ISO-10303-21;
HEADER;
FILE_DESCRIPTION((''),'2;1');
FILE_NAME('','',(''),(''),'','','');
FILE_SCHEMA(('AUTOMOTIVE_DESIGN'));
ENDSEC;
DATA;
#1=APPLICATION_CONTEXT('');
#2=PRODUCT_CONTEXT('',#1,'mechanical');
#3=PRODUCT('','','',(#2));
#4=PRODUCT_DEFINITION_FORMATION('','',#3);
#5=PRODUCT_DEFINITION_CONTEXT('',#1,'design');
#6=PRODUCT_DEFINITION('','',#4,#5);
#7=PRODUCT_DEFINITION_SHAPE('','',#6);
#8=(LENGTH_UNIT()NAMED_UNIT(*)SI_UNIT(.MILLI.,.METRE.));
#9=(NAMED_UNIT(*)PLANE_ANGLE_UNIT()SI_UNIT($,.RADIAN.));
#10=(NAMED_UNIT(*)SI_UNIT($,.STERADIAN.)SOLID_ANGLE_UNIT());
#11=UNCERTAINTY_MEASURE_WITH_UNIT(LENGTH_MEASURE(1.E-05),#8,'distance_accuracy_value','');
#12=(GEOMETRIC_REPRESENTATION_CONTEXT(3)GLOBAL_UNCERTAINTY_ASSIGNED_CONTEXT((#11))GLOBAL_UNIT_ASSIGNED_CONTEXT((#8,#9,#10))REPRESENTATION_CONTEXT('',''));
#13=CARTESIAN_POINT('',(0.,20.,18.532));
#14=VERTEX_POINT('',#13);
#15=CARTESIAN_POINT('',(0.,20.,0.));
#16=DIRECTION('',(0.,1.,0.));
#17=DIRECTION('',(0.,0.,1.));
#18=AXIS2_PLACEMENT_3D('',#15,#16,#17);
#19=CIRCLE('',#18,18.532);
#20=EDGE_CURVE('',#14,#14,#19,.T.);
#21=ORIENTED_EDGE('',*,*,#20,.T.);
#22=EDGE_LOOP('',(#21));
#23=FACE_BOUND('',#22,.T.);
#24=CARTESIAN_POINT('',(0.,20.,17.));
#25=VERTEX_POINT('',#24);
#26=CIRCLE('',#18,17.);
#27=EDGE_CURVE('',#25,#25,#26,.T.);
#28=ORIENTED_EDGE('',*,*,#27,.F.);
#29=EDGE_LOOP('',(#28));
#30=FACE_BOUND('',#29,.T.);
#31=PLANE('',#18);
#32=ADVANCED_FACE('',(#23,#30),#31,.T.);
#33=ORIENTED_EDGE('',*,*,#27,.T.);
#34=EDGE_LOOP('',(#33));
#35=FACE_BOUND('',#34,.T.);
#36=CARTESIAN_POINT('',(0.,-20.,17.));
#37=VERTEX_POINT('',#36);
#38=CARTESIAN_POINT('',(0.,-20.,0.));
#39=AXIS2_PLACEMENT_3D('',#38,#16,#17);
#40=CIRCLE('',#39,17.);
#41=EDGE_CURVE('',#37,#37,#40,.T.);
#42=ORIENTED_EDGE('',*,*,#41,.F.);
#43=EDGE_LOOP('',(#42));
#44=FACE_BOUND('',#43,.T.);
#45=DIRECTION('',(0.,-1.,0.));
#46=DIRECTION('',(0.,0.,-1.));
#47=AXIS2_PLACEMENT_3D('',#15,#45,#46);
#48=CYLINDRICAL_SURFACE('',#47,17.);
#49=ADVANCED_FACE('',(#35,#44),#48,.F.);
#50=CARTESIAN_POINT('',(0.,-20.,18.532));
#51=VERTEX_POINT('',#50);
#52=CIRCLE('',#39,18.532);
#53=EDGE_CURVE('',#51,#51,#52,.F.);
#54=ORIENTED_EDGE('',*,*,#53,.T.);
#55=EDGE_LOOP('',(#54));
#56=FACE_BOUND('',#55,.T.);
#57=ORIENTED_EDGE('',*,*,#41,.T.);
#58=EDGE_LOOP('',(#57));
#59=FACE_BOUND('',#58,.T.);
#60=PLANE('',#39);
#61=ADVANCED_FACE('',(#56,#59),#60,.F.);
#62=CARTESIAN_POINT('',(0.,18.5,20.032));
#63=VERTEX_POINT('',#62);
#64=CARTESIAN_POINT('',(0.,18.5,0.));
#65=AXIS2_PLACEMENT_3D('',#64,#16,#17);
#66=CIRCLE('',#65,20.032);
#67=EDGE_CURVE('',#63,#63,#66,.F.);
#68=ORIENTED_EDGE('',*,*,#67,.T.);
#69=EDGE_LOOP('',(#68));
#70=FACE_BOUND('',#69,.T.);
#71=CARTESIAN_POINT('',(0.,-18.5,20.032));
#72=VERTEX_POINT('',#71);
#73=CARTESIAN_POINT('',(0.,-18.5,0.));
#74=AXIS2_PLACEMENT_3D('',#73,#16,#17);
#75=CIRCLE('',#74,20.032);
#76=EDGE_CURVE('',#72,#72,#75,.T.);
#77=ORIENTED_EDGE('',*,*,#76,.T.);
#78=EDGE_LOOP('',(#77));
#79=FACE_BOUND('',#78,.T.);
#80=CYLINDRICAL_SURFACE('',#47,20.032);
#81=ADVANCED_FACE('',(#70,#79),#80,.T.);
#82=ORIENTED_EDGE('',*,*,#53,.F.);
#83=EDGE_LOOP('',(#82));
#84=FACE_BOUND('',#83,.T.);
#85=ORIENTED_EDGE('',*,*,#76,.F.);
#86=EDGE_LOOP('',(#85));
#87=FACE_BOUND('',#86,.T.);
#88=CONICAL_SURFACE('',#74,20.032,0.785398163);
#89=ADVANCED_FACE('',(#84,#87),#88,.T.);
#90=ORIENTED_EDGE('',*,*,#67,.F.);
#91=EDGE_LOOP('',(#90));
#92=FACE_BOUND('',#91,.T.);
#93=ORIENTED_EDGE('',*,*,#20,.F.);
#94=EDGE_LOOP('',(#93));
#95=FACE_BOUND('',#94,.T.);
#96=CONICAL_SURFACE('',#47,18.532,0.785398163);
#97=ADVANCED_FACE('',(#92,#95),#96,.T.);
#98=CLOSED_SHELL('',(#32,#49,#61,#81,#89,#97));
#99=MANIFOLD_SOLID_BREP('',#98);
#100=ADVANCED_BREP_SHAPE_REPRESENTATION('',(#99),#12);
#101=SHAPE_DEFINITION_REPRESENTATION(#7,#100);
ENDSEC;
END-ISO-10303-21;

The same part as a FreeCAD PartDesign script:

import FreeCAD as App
import Part
import Sketcher
Q = App.Units.Quantity


def edges_at(feature, points):
    """Names of the edges that pass closest to the given points."""
    edges = feature.Shape.Edges
    near = lambda p: min(range(len(edges)), key=lambda i: edges[i].distToShape(Part.Vertex(*p))[0])
    return sorted({f"Edge{near(p) + 1}" for p in points})

doc = App.newDocument("Part")
body = doc.addObject("PartDesign::Body", "Body")

# Sketch on XZ plane
sketch1 = body.newObject("Sketcher::SketchObject", "Sketch")
sketch1.AttachmentSupport = (doc.getObject("XZ_Plane"), [""])
sketch1.MapMode = "FlatFace"
sketch1.addGeometry(Part.Circle(App.Vector(0, 0, 0), App.Vector(0, 0, 1), 20), False)
sketch1.addGeometry(Part.Circle(App.Vector(0, 0, 0), App.Vector(0, 0, 1), 17), False)
sketch1.addConstraint(Sketcher.Constraint("Coincident", 0, 3, -1, 1))
sketch1.addConstraint(Sketcher.Constraint("Coincident", 1, 3, -1, 1))
sketch1.addConstraint(Sketcher.Constraint("Diameter", 1, Q("34 mm")))
sketch1.addConstraint(Sketcher.Constraint("Diameter", 0, Q("40.064 mm")))
pad1 = body.newObject("PartDesign::Pad", "Pad")
pad1.Profile = sketch1
pad1.Length = 40
pad1.Midplane = True
doc.recompute()

chamfer = body.newObject("PartDesign::Chamfer", "Chamfer")
chamfer.Base = (pad1, edges_at(pad1, [(-20.032, -20, 0), (-20.032, 20, 0)]))
chamfer.Size = 1.5

doc.recompute()
